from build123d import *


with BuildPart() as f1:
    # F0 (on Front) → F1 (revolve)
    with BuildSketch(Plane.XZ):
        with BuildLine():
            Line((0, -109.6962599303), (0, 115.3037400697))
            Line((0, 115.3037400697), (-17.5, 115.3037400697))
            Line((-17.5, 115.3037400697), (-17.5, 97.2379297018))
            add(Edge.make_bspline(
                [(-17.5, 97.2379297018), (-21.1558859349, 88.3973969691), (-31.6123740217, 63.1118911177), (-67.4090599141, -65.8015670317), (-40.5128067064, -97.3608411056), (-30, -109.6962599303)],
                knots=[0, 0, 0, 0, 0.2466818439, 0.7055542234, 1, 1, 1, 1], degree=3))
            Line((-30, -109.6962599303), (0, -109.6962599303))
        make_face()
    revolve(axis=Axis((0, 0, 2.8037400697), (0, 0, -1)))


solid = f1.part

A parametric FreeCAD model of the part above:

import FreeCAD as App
import Part
import Sketcher
from FreeCAD import Vector

doc = App.newDocument("Part")
params = doc.addObject("Spreadsheet::Sheet", "Params")
for row, (alias, value) in enumerate([
    ("sketch1_height", "225 mm"),
    ("revolution_angle", "360 deg"),
], start=1):
    params.set(f"A{row}", alias)
    params.set(f"B{row}", "=" + value)
    params.setAlias(f"B{row}", alias)

body = doc.addObject("PartDesign::Body", "Body")

sketch1 = body.newObject("Sketcher::SketchObject", "Sketch")
sketch1.AttachmentSupport = (doc.getObject("XZ_Plane"), [""])
sketch1.MapMode = "FlatFace"
sketch1.addGeometry(Part.LineSegment(Vector(0, -109.69626, 0), Vector(0, 115.30374, 0)), False)
sketch1.addGeometry(Part.LineSegment(Vector(0, 115.30374, 0), Vector(-17.5, 115.30374, 0)), False)
sketch1.addGeometry(Part.LineSegment(Vector(-17.5, 115.30374, 0), Vector(-17.5, 97.23793, 0)), False)
sketch1.addGeometry(Part.BSplineCurve([Vector(-17.5, 97.23793, 0), Vector(-21.155886, 88.397397, 0), Vector(-31.612374, 63.111891, 0), Vector(-67.40906, -65.801567, 0), Vector(-40.512807, -97.360841, 0), Vector(-30, -109.69626, 0)], [4, 1, 1, 4], [0, 0.246681844, 0.705554223, 1], False, 3, [1, 1, 1, 1, 1, 1], False), False)
sketch1.addGeometry(Part.LineSegment(Vector(-30, -109.69626, 0), Vector(0, -109.69626, 0)), False)
sketch1.addConstraint(Sketcher.Constraint("Block", 3))
sketch1.addConstraint(Sketcher.Constraint("Coincident", 0, 2, 1, 1))
sketch1.addConstraint(Sketcher.Constraint("Coincident", 1, 2, 2, 1))
sketch1.addConstraint(Sketcher.Constraint("Coincident", 2, 2, 3, 1))
sketch1.addConstraint(Sketcher.Constraint("Coincident", 3, 2, 4, 1))
sketch1.addConstraint(Sketcher.Constraint("Coincident", 4, 2, 0, 1))
sketch1.addConstraint(Sketcher.Constraint("Vertical", 0))
sketch1.addConstraint(Sketcher.Constraint("Horizontal", 1))
sketch1.addConstraint(Sketcher.Constraint("Vertical", 2))
sketch1.addConstraint(Sketcher.Constraint("Horizontal", 4))
sketch1.addConstraint(Sketcher.Constraint("PointOnObject", 0, 2, -2))
sketch1.addConstraint(Sketcher.Constraint("DistanceY", 0, 1, 0, 2, 225.0))
sketch1.setExpression("Constraints[11]", "Params.sketch1_height")
revolution = body.newObject("PartDesign::Revolution", "Revolution")
revolution.Profile = sketch1
revolution.ReferenceAxis = (sketch1, ["V_Axis"])
revolution.setExpression("Angle", "Params.revolution_angle")

doc.recompute()
